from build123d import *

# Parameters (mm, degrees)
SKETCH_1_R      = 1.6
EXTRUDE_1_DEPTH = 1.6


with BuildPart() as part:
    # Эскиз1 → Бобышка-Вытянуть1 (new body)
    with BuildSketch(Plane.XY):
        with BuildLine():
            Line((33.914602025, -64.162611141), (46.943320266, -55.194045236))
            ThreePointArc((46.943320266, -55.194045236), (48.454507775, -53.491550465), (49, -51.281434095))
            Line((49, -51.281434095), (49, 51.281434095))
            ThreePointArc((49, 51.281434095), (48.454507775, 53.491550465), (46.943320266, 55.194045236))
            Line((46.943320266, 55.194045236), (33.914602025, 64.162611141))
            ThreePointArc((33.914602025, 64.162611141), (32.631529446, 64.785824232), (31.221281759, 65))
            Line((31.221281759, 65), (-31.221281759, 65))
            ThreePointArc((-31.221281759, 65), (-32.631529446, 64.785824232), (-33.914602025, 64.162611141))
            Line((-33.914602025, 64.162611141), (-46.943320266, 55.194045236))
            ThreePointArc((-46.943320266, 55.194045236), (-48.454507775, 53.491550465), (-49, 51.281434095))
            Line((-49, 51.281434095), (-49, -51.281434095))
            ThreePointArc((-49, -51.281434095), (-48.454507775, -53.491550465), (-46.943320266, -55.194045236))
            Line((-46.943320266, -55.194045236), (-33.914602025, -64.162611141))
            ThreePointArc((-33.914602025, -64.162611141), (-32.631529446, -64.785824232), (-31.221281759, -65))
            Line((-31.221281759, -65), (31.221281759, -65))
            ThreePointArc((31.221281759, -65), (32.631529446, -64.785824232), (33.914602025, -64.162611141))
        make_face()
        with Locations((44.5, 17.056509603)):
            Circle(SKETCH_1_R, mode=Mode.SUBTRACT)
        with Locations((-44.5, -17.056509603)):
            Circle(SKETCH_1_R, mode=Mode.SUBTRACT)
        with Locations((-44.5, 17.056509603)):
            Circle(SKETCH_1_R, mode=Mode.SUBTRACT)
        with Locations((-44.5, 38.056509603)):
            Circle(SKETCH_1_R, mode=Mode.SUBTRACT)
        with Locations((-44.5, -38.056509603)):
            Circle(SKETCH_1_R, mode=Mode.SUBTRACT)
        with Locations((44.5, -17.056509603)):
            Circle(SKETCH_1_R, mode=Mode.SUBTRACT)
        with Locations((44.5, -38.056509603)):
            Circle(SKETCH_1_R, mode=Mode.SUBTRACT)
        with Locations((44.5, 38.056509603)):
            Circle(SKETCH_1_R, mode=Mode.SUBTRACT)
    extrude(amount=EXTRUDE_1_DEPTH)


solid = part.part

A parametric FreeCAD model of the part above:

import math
import FreeCAD as App
import Part
import Sketcher

doc = App.newDocument("Part")
body = doc.addObject("PartDesign::Body", "Body")

sketch1 = body.newObject("Sketcher::SketchObject", "Sketch")
sketch1.AttachmentSupport = (doc.getObject("XY_Plane"), [""])
sketch1.MapMode = "FlatFace"
sketch1.addGeometry(Part.LineSegment(App.Vector(33.9, -64.2, 0), App.Vector(46.9, -55.2, 0)), False)
sketch1.addGeometry(Part.ArcOfCircle(Part.Circle(App.Vector(44.3, -51.3, 0), App.Vector(0, 0, 1), 4.7), math.radians(-55), math.radians(0)), False)
sketch1.addGeometry(Part.LineSegment(App.Vector(49, -51.3, 0), App.Vector(49, 51.3, 0)), False)
sketch1.addGeometry(Part.ArcOfCircle(Part.Circle(App.Vector(44.3, 51.3, 0), App.Vector(0, 0, 1), 4.7), math.radians(0), math.radians(55)), False)
sketch1.addGeometry(Part.LineSegment(App.Vector(46.9, 55.2, 0), App.Vector(33.9, 64.2, 0)), False)
sketch1.addGeometry(Part.ArcOfCircle(Part.Circle(App.Vector(31.2, 60.3, 0), App.Vector(0, 0, 1), 4.7), math.radians(55), math.radians(90)), False)
sketch1.addGeometry(Part.LineSegment(App.Vector(31.2, 65, 0), App.Vector(-31.2, 65, 0)), False)
sketch1.addGeometry(Part.ArcOfCircle(Part.Circle(App.Vector(-31.2, 60.3, 0), App.Vector(0, 0, 1), 4.7), math.radians(90), math.radians(125)), False)
sketch1.addGeometry(Part.LineSegment(App.Vector(-33.9, 64.2, 0), App.Vector(-46.9, 55.2, 0)), False)
sketch1.addGeometry(Part.ArcOfCircle(Part.Circle(App.Vector(-44.3, 51.3, 0), App.Vector(0, 0, 1), 4.7), math.radians(125), math.radians(180)), False)
sketch1.addGeometry(Part.LineSegment(App.Vector(-49, 51.3, 0), App.Vector(-49, -51.3, 0)), False)
sketch1.addGeometry(Part.ArcOfCircle(Part.Circle(App.Vector(-44.3, -51.3, 0), App.Vector(0, 0, 1), 4.7), math.radians(180), math.radians(235)), False)
sketch1.addGeometry(Part.LineSegment(App.Vector(-46.9, -55.2, 0), App.Vector(-33.9, -64.2, 0)), False)
sketch1.addGeometry(Part.ArcOfCircle(Part.Circle(App.Vector(-31.2, -60.3, 0), App.Vector(0, 0, 1), 4.7), math.radians(-125), math.radians(-90)), False)
sketch1.addGeometry(Part.LineSegment(App.Vector(-31.2, -65, 0), App.Vector(31.2, -65, 0)), False)
sketch1.addGeometry(Part.ArcOfCircle(Part.Circle(App.Vector(31.2, -60.3, 0), App.Vector(0, 0, 1), 4.7), math.radians(-90), math.radians(-55)), False)
sketch1.addGeometry(Part.Circle(App.Vector(-44.5, -38.1, 0), App.Vector(0, 0, 1), 1.6), False)
sketch1.addGeometry(Part.Circle(App.Vector(-44.5, -17.1, 0), App.Vector(0, 0, 1), 1.6), False)
sketch1.addGeometry(Part.Circle(App.Vector(44.5, -38.1, 0), App.Vector(0, 0, 1), 1.6), False)
sketch1.addGeometry(Part.Circle(App.Vector(44.5, -17.1, 0), App.Vector(0, 0, 1), 1.6), False)
sketch1.addGeometry(Part.Circle(App.Vector(-44.5, 17.1, 0), App.Vector(0, 0, 1), 1.6), False)
sketch1.addGeometry(Part.Circle(App.Vector(-44.5, 38.1, 0), App.Vector(0, 0, 1), 1.6), False)
sketch1.addGeometry(Part.Circle(App.Vector(44.5, 17.1, 0), App.Vector(0, 0, 1), 1.6), False)
sketch1.addGeometry(Part.Circle(App.Vector(44.5, 38.1, 0), App.Vector(0, 0, 1), 1.6), False)
sketch1.addConstraint(Sketcher.Constraint("Tangent", 0, 2, 1, 1))
sketch1.addConstraint(Sketcher.Constraint("Tangent", 1, 2, 2, 1))
sketch1.addConstraint(Sketcher.Constraint("Tangent", 2, 2, 3, 1))
sketch1.addConstraint(Sketcher.Constraint("Tangent", 3, 2, 4, 1))
sketch1.addConstraint(Sketcher.Constraint("Tangent", 4, 2, 5, 1))
sketch1.addConstraint(Sketcher.Constraint("Tangent", 5, 2, 6, 1))
sketch1.addConstraint(Sketcher.Constraint("Tangent", 6, 2, 7, 1))
sketch1.addConstraint(Sketcher.Constraint("Tangent", 7, 2, 8, 1))
sketch1.addConstraint(Sketcher.Constraint("Tangent", 8, 2, 9, 1))
sketch1.addConstraint(Sketcher.Constraint("Tangent", 9, 2, 10, 1))
sketch1.addConstraint(Sketcher.Constraint("Tangent", 10, 2, 11, 1))
sketch1.addConstraint(Sketcher.Constraint("Tangent", 11, 2, 12, 1))
sketch1.addConstraint(Sketcher.Constraint("Tangent", 12, 2, 13, 1))
sketch1.addConstraint(Sketcher.Constraint("Tangent", 13, 2, 14, 1))
sketch1.addConstraint(Sketcher.Constraint("Tangent", 14, 2, 15, 1))
sketch1.addConstraint(Sketcher.Constraint("Tangent", 15, 2, 0, 1))
sketch1.addConstraint(Sketcher.Constraint("Vertical", 2))
sketch1.addConstraint(Sketcher.Constraint("Horizontal", 6))
sketch1.addConstraint(Sketcher.Constraint("Vertical", 10))
sketch1.addConstraint(Sketcher.Constraint("Horizontal", 14))
sketch1.addConstraint(Sketcher.Constraint("Equal", 1, 3))
sketch1.addConstraint(Sketcher.Constraint("Equal", 3, 5))
sketch1.addConstraint(Sketcher.Constraint("Equal", 5, 7))
sketch1.addConstraint(Sketcher.Constraint("Equal", 7, 9))
sketch1.addConstraint(Sketcher.Constraint("Equal", 9, 11))
sketch1.addConstraint(Sketcher.Constraint("Equal", 11, 13))
sketch1.addConstraint(Sketcher.Constraint("Equal", 13, 15))
sketch1.addConstraint(Sketcher.Constraint("Equal", 16, 17))
sketch1.addConstraint(Sketcher.Constraint("Equal", 17, 18))
sketch1.addConstraint(Sketcher.Constraint("Equal", 18, 19))
sketch1.addConstraint(Sketcher.Constraint("Equal", 19, 20))
sketch1.addConstraint(Sketcher.Constraint("Equal", 20, 21))
sketch1.addConstraint(Sketcher.Constraint("Equal", 21, 22))
sketch1.addConstraint(Sketcher.Constraint("Equal", 22, 23))
sketch1.addConstraint(Sketcher.Constraint("Symmetric", 1, 3, 9, 3, -1, 1))
sketch1.addConstraint(Sketcher.Constraint("Symmetric", 5, 3, 13, 3, -1, 1))
sketch1.addConstraint(Sketcher.Constraint("Symmetric", 19, 3, 20, 3, -1, 1))
sketch1.addConstraint(Sketcher.Constraint("Symmetric", 18, 3, 21, 3, -1, 1))
sketch1.addConstraint(Sketcher.Constraint("Symmetric", 17, 3, 22, 3, -1, 1))
sketch1.addConstraint(Sketcher.Constraint("Symmetric", 16, 3, 23, 3, -1, 1))
sketch1.addConstraint(Sketcher.Constraint("Symmetric", 16, 3, 18, 3, -2))
sketch1.addConstraint(Sketcher.Constraint("Symmetric", 17, 3, 19, 3, -2))
sketch1.addConstraint(Sketcher.Constraint("Symmetric", 4, 2, 7, 2, -2))
sketch1.addConstraint(Sketcher.Constraint("Symmetric", 0, 2, 11, 2, -2))
sketch1.addConstraint(Sketcher.Constraint("Vertical", 16, 3, 17, 3))
sketch1.addConstraint(Sketcher.Constraint("Diameter", 16, 3.2))
sketch1.addConstraint(Sketcher.Constraint("Radius", 1, 4.75))
sketch1.addConstraint(Sketcher.Constraint("DistanceX", -1, 1, 1, 2, 49.0))
sketch1.addConstraint(Sketcher.Constraint("DistanceY", -1, 1, 5, 2, 65.0))
sketch1.addConstraint(Sketcher.Constraint("DistanceY", 16, 3, 17, 3, 21.0))
sketch1.addConstraint(Sketcher.Constraint("DistanceX", 16, 3, 18, 3, 89.0))
sketch1.addConstraint(Sketcher.Constraint("DistanceY", 2, 1, 2, 2, 102.562868))
sketch1.addConstraint(Sketcher.Constraint("DistanceY", 23, 3, 4, 2, 26.106102))
sketch1.addConstraint(Sketcher.Constraint("DistanceX", 6, 2, 6, 1, 62.442564))
pad1 = body.newObject("PartDesign::Pad", "Pad")
pad1.Profile = sketch1
pad1.Length = 1.6

doc.recompute()
